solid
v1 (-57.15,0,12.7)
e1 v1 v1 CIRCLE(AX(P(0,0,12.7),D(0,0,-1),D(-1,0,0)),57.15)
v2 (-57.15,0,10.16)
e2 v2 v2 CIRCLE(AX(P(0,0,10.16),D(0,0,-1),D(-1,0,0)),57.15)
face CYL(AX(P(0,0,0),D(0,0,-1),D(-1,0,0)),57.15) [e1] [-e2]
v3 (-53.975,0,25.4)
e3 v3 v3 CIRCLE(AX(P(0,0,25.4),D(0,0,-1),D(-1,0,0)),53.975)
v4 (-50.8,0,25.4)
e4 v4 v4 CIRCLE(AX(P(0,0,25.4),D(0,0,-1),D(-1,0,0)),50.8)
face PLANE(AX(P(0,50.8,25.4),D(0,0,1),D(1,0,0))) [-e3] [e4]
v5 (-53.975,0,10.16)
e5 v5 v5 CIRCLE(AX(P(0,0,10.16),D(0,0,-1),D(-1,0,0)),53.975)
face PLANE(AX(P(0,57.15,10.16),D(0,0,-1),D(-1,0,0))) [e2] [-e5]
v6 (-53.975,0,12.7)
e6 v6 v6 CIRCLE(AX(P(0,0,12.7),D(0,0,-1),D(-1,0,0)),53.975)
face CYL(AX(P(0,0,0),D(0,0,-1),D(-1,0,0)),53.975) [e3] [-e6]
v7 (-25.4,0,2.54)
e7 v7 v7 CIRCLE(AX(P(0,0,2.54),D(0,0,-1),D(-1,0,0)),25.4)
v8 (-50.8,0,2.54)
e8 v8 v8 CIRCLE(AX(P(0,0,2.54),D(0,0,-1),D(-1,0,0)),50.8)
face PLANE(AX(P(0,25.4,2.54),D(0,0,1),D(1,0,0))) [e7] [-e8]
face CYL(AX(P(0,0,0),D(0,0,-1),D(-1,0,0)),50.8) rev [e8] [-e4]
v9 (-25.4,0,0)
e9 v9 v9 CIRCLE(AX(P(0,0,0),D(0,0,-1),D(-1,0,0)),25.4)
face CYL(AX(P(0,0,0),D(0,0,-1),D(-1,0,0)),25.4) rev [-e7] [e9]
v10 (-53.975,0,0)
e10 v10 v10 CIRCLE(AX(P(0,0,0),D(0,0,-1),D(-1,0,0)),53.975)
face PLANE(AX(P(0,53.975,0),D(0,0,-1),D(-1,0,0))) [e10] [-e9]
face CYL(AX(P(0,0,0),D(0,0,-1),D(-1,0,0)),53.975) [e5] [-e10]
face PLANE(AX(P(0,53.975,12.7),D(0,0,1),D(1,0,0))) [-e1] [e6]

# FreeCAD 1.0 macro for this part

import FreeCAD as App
import Part
import Sketcher
from FreeCAD import Vector
Q = App.Units.Quantity

doc = App.newDocument("Part")
body = doc.addObject("PartDesign::Body", "Body")

# Sketch on YZ plane
sketch1 = body.newObject("Sketcher::SketchObject", "Sketch")
sketch1.AttachmentSupport = (doc.getObject("YZ_Plane"), [""])
sketch1.MapMode = "FlatFace"
sketch1.addGeometry(Part.LineSegment(Vector(25.4, 2.5, 0), Vector(25.4, 0, 0)), False)
sketch1.addGeometry(Part.LineSegment(Vector(25.4, 0, 0), Vector(54, 0, 0)), False)
sketch1.addGeometry(Part.LineSegment(Vector(54, 0, 0), Vector(54, 10.2, 0)), False)
sketch1.addGeometry(Part.LineSegment(Vector(54, 10.2, 0), Vector(57.1, 10.2, 0)), False)
sketch1.addGeometry(Part.LineSegment(Vector(57.1, 10.2, 0), Vector(57.1, 12.7, 0)), False)
sketch1.addGeometry(Part.LineSegment(Vector(57.1, 12.7, 0), Vector(54, 12.7, 0)), False)
sketch1.addGeometry(Part.LineSegment(Vector(54, 12.7, 0), Vector(54, 25.4, 0)), False)
sketch1.addGeometry(Part.LineSegment(Vector(54, 25.4, 0), Vector(50.8, 25.4, 0)), False)
sketch1.addGeometry(Part.LineSegment(Vector(50.8, 25.4, 0), Vector(50.8, 2.5, 0)), False)
sketch1.addGeometry(Part.LineSegment(Vector(50.8, 2.5, 0), Vector(25.4, 2.5, 0)), False)
sketch1.addConstraint(Sketcher.Constraint("Coincident", 0, 2, 1, 1))
sketch1.addConstraint(Sketcher.Constraint("Coincident", 1, 2, 2, 1))
sketch1.addConstraint(Sketcher.Constraint("Coincident", 2, 2, 3, 1))
sketch1.addConstraint(Sketcher.Constraint("Coincident", 3, 2, 4, 1))
sketch1.addConstraint(Sketcher.Constraint("Coincident", 4, 2, 5, 1))
sketch1.addConstraint(Sketcher.Constraint("Coincident", 5, 2, 6, 1))
sketch1.addConstraint(Sketcher.Constraint("Coincident", 6, 2, 7, 1))
sketch1.addConstraint(Sketcher.Constraint("Coincident", 7, 2, 8, 1))
sketch1.addConstraint(Sketcher.Constraint("Coincident", 8, 2, 9, 1))
sketch1.addConstraint(Sketcher.Constraint("Coincident", 9, 2, 0, 1))
sketch1.addConstraint(Sketcher.Constraint("Vertical", 0))
sketch1.addConstraint(Sketcher.Constraint("Horizontal", 1))
sketch1.addConstraint(Sketcher.Constraint("Vertical", 2))
sketch1.addConstraint(Sketcher.Constraint("Horizontal", 3))
sketch1.addConstraint(Sketcher.Constraint("Vertical", 4))
sketch1.addConstraint(Sketcher.Constraint("Horizontal", 5))
sketch1.addConstraint(Sketcher.Constraint("Vertical", 6))
sketch1.addConstraint(Sketcher.Constraint("Horizontal", 7))
sketch1.addConstraint(Sketcher.Constraint("Vertical", 8))
sketch1.addConstraint(Sketcher.Constraint("Horizontal", 9))
sketch1.addConstraint(Sketcher.Constraint("PointOnObject", 0, 2, -1))
sketch1.addConstraint(Sketcher.Constraint("Vertical", 2, 2, 5, 2))
sketch1.addConstraint(Sketcher.Constraint("Equal", 5, 7))
sketch1.addConstraint(Sketcher.Constraint("Equal", 0, 4))
sketch1.addConstraint(Sketcher.Constraint("DistanceX", 9, 2, 9, 1, Q("1 in")))
sketch1.addConstraint(Sketcher.Constraint("DistanceY", 0, 2, 0, 1, Q("0.1 in")))
sketch1.addConstraint(Sketcher.Constraint("DistanceY", 2, 1, 2, 2, Q("0.4 in")))
sketch1.addConstraint(Sketcher.Constraint("DistanceY", 6, 1, 6, 2, Q("0.5 in")))
sketch1.addConstraint(Sketcher.Constraint("DistanceX", -1, 1, 0, 2, Q("1 in")))
sketch1.addConstraint(Sketcher.Constraint("DistanceX", 1, 1, 1, 2, Q("1.125 in")))
revolution = body.newObject("PartDesign::Revolution", "Revolution")
revolution.Profile = sketch1
revolution.ReferenceAxis = (sketch1, ["V_Axis"])
revolution.Angle = 360

doc.recompute()
